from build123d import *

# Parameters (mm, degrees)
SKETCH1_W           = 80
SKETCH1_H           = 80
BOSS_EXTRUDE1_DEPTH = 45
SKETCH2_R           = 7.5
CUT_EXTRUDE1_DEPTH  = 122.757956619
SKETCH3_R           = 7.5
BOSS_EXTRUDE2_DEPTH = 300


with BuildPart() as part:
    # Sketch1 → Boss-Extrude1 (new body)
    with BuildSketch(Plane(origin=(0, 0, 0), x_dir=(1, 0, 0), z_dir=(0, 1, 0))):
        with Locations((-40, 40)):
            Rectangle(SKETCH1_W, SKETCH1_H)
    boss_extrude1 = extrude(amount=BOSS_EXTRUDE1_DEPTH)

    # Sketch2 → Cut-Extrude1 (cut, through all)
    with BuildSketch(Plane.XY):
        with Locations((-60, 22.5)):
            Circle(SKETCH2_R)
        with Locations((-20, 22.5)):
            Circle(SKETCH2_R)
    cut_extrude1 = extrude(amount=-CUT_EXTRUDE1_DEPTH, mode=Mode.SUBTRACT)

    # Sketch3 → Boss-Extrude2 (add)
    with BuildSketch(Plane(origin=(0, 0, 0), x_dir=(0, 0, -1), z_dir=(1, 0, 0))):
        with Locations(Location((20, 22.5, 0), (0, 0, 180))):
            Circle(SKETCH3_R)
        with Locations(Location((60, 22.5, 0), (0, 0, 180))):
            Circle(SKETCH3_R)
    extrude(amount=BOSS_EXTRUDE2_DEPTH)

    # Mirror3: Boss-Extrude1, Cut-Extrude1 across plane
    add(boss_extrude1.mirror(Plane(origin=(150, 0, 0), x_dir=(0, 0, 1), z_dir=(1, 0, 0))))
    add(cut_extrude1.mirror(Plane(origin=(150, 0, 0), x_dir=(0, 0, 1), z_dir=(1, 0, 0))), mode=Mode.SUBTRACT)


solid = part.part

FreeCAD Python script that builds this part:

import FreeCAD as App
import Part
import Sketcher

V = App.Vector
Q = App.Units.Quantity


def add_polygon(sketch, points):
    """Adds a closed chain of lines whose ends are joined by coincident constraints."""
    first, n = sketch.GeometryCount, len(points)
    for a, b in zip(points, points[1:] + points[:1]):
        sketch.addGeometry(Part.LineSegment(App.Vector(*a, 0), App.Vector(*b, 0)), False)
    for i in range(n):
        sketch.addConstraint(Sketcher.Constraint("Coincident", first + i, 2, first + (i + 1) % n, 1))

doc = App.newDocument("Part")
body = doc.addObject("PartDesign::Body", "Body")

sketch1 = doc.addObject("Sketcher::SketchObject", "Sketch")
body.addObject(sketch1)
sketch1.AttachmentSupport = (doc.XZ_Plane, [""])
sketch1.MapMode = "FlatFace"
add_polygon(sketch1, [(-80, -80), (-80, 0), (0, 0), (0, -80)])
sketch1.addConstraint(Sketcher.Constraint("Vertical", 0))
sketch1.addConstraint(Sketcher.Constraint("Horizontal", 1))
sketch1.addConstraint(Sketcher.Constraint("Vertical", 2))
sketch1.addConstraint(Sketcher.Constraint("Horizontal", 3))
sketch1.addConstraint(Sketcher.Constraint("Coincident", 1, 2, -1, 1))
sketch1.addConstraint(Sketcher.Constraint("Equal", 3, 0))
sketch1.addConstraint(Sketcher.Constraint("DistanceX", 1, 1, 1, 2, Q("80 mm")))
pad1 = doc.addObject("PartDesign::Pad", "Pad")
body.addObject(pad1)
pad1.Profile = sketch1
pad1.Length = 45
pad1.Reversed = True

sketch2 = doc.addObject("Sketcher::SketchObject", "Sketch001")
body.addObject(sketch2)
sketch2.AttachmentSupport = (doc.XY_Plane, [""])
sketch2.MapMode = "FlatFace"
sketch2.addGeometry(Part.Circle(V(-60, 22, 0), V(0, 0, 1), 8), False)
sketch2.addGeometry(Part.Circle(V(-20, 22, 0), V(0, 0, 1), 8), False)
sketch2.addConstraint(Sketcher.Constraint("Equal", 0, 1))
sketch2.addConstraint(Sketcher.Constraint("Horizontal", 0, 3, 1, 3))
sketch2.addConstraint(Sketcher.Constraint("Diameter", 0, Q("15 mm")))
sketch2.addConstraint(Sketcher.Constraint("DistanceX", 0, 3, -1, 1, Q("60 mm")))
sketch2.addConstraint(Sketcher.Constraint("DistanceX", 1, 3, -1, 1, Q("20 mm")))
sketch2.addConstraint(Sketcher.Constraint("DistanceY", -1, 1, 0, 3, Q("22.5 mm")))
pocket1 = doc.addObject("PartDesign::Pocket", "Pocket")
body.addObject(pocket1)
pocket1.Profile = sketch2
pocket1.Type = "ThroughAll"

sketch3 = doc.addObject("Sketcher::SketchObject", "Sketch002")
body.addObject(sketch3)
sketch3.AttachmentSupport = (doc.YZ_Plane, [""])
sketch3.MapMode = "FlatFace"
sketch3.addGeometry(Part.Circle(V(22, -20, 0), V(0, 0, 1), 8), False)
sketch3.addGeometry(Part.Circle(V(22, -60, 0), V(0, 0, 1), 8), False)
sketch3.addConstraint(Sketcher.Constraint("Equal", 0, 1))
sketch3.addConstraint(Sketcher.Constraint("Vertical", 0, 3, 1, 3))
sketch3.addConstraint(Sketcher.Constraint("Diameter", 0, Q("15 mm")))
sketch3.addConstraint(Sketcher.Constraint("DistanceY", 0, 3, -1, 1, Q("20 mm")))
sketch3.addConstraint(Sketcher.Constraint("DistanceY", 1, 3, -1, 1, Q("60 mm")))
sketch3.addConstraint(Sketcher.Constraint("DistanceX", -1, 1, 0, 3, Q("22.5 mm")))
pad2 = doc.addObject("PartDesign::Pad", "Pad001")
body.addObject(pad2)
pad2.Profile = sketch3
pad2.Length = 300
doc.recompute()

datumplane = doc.addObject("PartDesign::Plane", "DatumPlane")
body.addObject(datumplane)
datumplane.AttachmentSupport = (doc.YZ_Plane, [""])
datumplane.MapMode = "FlatFace"
datumplane.AttachmentOffset = App.Placement(V(0, 0, 150), App.Rotation())
mirrored = doc.addObject("PartDesign::Mirrored", "Mirrored")
body.addObject(mirrored)
mirrored.Originals = [pad1, pocket1]
mirrored.MirrorPlane = (datumplane, [""])
body.Tip = mirrored

doc.recompute()
